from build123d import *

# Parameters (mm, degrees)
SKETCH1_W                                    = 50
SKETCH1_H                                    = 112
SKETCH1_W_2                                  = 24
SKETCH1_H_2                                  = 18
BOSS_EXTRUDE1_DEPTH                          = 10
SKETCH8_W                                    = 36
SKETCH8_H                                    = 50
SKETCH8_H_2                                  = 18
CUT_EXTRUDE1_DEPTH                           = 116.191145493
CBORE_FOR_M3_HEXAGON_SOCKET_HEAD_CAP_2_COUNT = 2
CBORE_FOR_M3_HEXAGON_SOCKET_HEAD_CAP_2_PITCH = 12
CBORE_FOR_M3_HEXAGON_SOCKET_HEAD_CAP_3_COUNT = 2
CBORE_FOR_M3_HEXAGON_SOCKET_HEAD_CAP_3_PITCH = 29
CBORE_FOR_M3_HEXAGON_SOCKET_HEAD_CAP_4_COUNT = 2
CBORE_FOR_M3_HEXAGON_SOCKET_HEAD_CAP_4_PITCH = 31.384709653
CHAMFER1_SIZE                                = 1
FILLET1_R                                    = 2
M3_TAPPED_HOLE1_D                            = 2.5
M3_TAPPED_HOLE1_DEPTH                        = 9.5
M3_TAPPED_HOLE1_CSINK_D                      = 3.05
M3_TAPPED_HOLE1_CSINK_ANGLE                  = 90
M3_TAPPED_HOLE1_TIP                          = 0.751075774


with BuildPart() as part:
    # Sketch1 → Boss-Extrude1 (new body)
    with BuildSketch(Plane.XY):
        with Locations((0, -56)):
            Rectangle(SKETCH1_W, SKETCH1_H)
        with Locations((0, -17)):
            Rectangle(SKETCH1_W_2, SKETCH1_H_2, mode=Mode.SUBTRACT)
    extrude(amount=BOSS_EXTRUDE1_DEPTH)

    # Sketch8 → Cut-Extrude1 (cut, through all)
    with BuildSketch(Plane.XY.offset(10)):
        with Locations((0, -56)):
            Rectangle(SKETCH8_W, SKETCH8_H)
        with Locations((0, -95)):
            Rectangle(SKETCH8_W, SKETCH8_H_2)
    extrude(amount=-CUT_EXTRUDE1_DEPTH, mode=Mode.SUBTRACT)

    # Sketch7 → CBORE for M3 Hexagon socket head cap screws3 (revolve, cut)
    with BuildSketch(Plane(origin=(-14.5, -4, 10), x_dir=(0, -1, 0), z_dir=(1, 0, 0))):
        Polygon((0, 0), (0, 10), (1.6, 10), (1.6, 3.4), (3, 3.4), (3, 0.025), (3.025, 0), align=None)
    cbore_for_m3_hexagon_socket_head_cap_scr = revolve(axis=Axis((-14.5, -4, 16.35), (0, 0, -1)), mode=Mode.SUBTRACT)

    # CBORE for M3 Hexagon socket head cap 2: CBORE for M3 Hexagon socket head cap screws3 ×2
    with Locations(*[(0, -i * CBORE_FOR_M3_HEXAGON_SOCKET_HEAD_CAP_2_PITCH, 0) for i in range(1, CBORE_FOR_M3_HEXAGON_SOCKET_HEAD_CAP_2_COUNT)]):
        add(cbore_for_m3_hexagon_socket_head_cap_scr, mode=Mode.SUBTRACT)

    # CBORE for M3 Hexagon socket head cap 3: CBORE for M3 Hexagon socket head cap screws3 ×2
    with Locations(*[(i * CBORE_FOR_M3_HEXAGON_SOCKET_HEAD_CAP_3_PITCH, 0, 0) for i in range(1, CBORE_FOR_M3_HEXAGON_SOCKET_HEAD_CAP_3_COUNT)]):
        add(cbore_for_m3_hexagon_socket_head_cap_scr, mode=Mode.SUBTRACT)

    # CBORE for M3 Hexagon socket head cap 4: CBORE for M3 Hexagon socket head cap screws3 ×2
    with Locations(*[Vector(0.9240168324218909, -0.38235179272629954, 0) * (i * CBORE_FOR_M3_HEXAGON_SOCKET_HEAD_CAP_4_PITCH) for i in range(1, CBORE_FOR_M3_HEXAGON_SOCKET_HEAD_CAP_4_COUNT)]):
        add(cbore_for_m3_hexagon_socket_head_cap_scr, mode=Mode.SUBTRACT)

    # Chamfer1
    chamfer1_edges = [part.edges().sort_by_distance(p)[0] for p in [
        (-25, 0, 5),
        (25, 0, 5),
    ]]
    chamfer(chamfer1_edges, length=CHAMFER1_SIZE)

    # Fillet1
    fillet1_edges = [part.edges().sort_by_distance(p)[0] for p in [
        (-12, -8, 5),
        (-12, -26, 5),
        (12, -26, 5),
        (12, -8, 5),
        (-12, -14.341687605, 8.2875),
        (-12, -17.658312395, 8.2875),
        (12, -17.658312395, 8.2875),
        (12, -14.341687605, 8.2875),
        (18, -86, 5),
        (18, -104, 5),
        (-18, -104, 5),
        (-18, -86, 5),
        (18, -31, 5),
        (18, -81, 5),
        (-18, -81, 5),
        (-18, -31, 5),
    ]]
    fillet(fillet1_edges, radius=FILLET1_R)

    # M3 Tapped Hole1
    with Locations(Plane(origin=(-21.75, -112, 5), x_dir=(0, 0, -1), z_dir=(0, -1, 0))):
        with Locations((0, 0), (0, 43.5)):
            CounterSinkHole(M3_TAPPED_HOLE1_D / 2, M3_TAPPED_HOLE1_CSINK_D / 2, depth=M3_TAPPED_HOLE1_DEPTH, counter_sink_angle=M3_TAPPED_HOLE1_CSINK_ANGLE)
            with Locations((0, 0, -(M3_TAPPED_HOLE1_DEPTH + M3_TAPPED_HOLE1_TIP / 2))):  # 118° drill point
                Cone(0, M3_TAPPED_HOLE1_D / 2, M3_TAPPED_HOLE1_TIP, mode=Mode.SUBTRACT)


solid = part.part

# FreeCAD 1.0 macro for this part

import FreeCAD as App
import Part
import Sketcher
Q = App.Units.Quantity


def edges_at(feature, points):
    """Names of the edges that pass closest to the given points."""
    edges = feature.Shape.Edges
    near = lambda p: min(range(len(edges)), key=lambda i: edges[i].distToShape(Part.Vertex(*p))[0])
    return sorted({f"Edge{near(p) + 1}" for p in points})


def add_polygon(sketch, points):
    """Adds a closed chain of lines whose ends are joined by coincident constraints."""
    first, n = sketch.GeometryCount, len(points)
    for a, b in zip(points, points[1:] + points[:1]):
        sketch.addGeometry(Part.LineSegment(App.Vector(*a, 0), App.Vector(*b, 0)), False)
    for i in range(n):
        sketch.addConstraint(Sketcher.Constraint("Coincident", first + i, 2, first + (i + 1) % n, 1))

doc = App.newDocument("Part")
body = doc.addObject("PartDesign::Body", "Body")

sketch1 = body.newObject("Sketcher::SketchObject", "Sketch")
sketch1.AttachmentSupport = (doc.getObject("XY_Plane"), [""])
sketch1.MapMode = "FlatFace"
add_polygon(sketch1, [(-25, 0), (-25, -112), (25, -112), (25, 0)])
add_polygon(sketch1, [(12, -26), (-12, -26), (-12, -8), (12, -8)])
sketch1.addConstraint([
    Sketcher.Constraint("Vertical", 0),
    Sketcher.Constraint("Horizontal", 1),
    Sketcher.Constraint("Vertical", 2),
    Sketcher.Constraint("Horizontal", 3),
    Sketcher.Constraint("Horizontal", 4),
    Sketcher.Constraint("Vertical", 5),
    Sketcher.Constraint("Horizontal", 6),
    Sketcher.Constraint("Vertical", 7),
    Sketcher.Constraint("Symmetric", 2, 2, 3, 2, -1, 1),
    Sketcher.Constraint("DistanceX", 1, 1, 1, 2, 50.0),
    Sketcher.Constraint("DistanceX", 4, 2, 4, 1, 24.0),
    Sketcher.Constraint("DistanceY", 0, 2, 0, 1, 112.0),
    Sketcher.Constraint("DistanceY", 5, 1, 5, 2, 18.0),
    Sketcher.Constraint("DistanceX", 4, 2, -1, 1, 12.0),
    Sketcher.Constraint("DistanceY", 4, 2, -1, 1, 26.0),
])
pad1 = body.newObject("PartDesign::Pad", "Pad")
pad1.Profile = sketch1
pad1.Length = 10

sketch2 = body.newObject("Sketcher::SketchObject", "Sketch001")
sketch2.AttachmentSupport = (doc.getObject("XY_Plane"), [""])
sketch2.MapMode = "FlatFace"
sketch2.AttachmentOffset = App.Placement(App.Vector(0, 0, 10), App.Rotation())
add_polygon(sketch2, [(-18, -31), (-18, -81), (18, -81), (18, -31)])
add_polygon(sketch2, [(-18, -86), (-18, -104), (18, -104), (18, -86)])
sketch2.addConstraint([
    Sketcher.Constraint("Vertical", 0),
    Sketcher.Constraint("Horizontal", 1),
    Sketcher.Constraint("Vertical", 2),
    Sketcher.Constraint("Horizontal", 3),
    Sketcher.Constraint("Vertical", 4),
    Sketcher.Constraint("Horizontal", 5),
    Sketcher.Constraint("Vertical", 6),
    Sketcher.Constraint("Horizontal", 7),
    Sketcher.Constraint("Vertical", 3, 2, 4, 2),
    Sketcher.Constraint("Vertical", 2, 2, 5, 2),
    Sketcher.Constraint("DistanceX", 1, 1, 1, 2, 36.0),
    Sketcher.Constraint("DistanceY", 0, 2, 0, 1, 50.0),
    Sketcher.Constraint("DistanceY", 4, 2, 4, 1, 18.0),
    Sketcher.Constraint("DistanceX", 0, 2, -1, 1, 18.0),
    Sketcher.Constraint("DistanceY", 0, 2, -1, 1, 81.0),
    Sketcher.Constraint("DistanceY", 4, 2, -1, 1, 104.0),
])
pocket1 = body.newObject("PartDesign::Pocket", "Pocket")
pocket1.Profile = sketch2
pocket1.Type = "ThroughAll"

sketch3 = body.newObject("Sketcher::SketchObject", "Sketch002")
sketch3.AttachmentSupport = (doc.getObject("YZ_Plane"), [""])
sketch3.MapMode = "FlatFace"
sketch3.AttachmentOffset = App.Placement(App.Vector(0, 0, -14.5), App.Rotation())
add_polygon(sketch3, [(-4, 0), (-4, 10), (-7.025, 10), (-7, 9.975), (-7, 6.6), (-5.6, 6.6), (-5.6, 0)])
sketch3.addGeometry(Part.LineSegment(App.Vector(-4, 10, 0), App.Vector(-4, 0, 0)), True)
sketch3.addConstraint([
    Sketcher.Constraint("Vertical", 0),
    Sketcher.Constraint("Horizontal", 1),
    Sketcher.Constraint("Vertical", 3),
    Sketcher.Constraint("Horizontal", 4),
    Sketcher.Constraint("Vertical", 5),
    Sketcher.Constraint("Horizontal", 6),
    Sketcher.Constraint("Vertical", 7),
    Sketcher.Constraint("Coincident", 7, 1, 0, 2),
    Sketcher.Constraint("PointOnObject", 5, 2, -1),
    Sketcher.Constraint("PointOnObject", 7, 2, -1),
    Sketcher.Constraint("DistanceY", 0, 1, 0, 2, 10.0),
    Sketcher.Constraint("Angle", 2, Q("-45 deg")),
    Sketcher.Constraint("DistanceX", 4, 1, 4, 2, 1.4),
    Sketcher.Constraint("DistanceX", 6, 1, 6, 2, 1.6),
    Sketcher.Constraint("DistanceY", 5, 2, 5, 1, 6.6),
    Sketcher.Constraint("DistanceX", 0, 2, -1, 1, 4.0),
    Sketcher.Constraint("DistanceX", 1, 2, 1, 1, 3.025),
])
groove = body.newObject("PartDesign::Groove", "Groove")
groove.Profile = sketch3
groove.ReferenceAxis = (sketch3, ["Axis0"])
groove.Angle = 360
doc.recompute()

linearpattern = body.newObject("PartDesign::LinearPattern", "LinearPattern")
linearpattern.Originals = [groove]
linearpattern.Direction = (doc.getObject("Y_Axis"), [""])
linearpattern.Mode = "offset"
linearpattern.Offset = 12
linearpattern.Occurrences = 2
linearpattern.Reversed = True
body.Tip = linearpattern
doc.recompute()

linearpattern2 = body.newObject("PartDesign::LinearPattern", "LinearPattern001")
linearpattern2.Originals = [groove]
linearpattern2.Direction = (doc.getObject("X_Axis"), [""])
linearpattern2.Mode = "offset"
linearpattern2.Offset = 29
linearpattern2.Occurrences = 2
body.Tip = linearpattern2
doc.recompute()

datumline = body.newObject("PartDesign::Line", "DatumLine")
datumline.Placement = App.Placement(App.Vector(0, 0, 0), App.Rotation(App.Vector(0, 0, 1), App.Vector(0.924016832, -0.382351793, 0)))
linearpattern3 = body.newObject("PartDesign::LinearPattern", "LinearPattern002")
linearpattern3.Originals = [groove]
linearpattern3.Direction = (datumline, [""])
linearpattern3.Mode = "offset"
linearpattern3.Offset = 31.38471
linearpattern3.Occurrences = 2
body.Tip = linearpattern3
doc.recompute()

chamfer = body.newObject("PartDesign::Chamfer", "Chamfer")
chamfer.Base = (linearpattern3, edges_at(linearpattern3, [(-25, 0, 5), (25, 0, 5)]))
chamfer.Size = 1
doc.recompute()

fillet = body.newObject("PartDesign::Fillet", "Fillet")
fillet.Base = (chamfer, edges_at(chamfer, [
    (-12, -8, 5),
    (-12, -26, 5),
    (12, -26, 5),
    (12, -8, 5),
    (-12, -14.342, 8.287),
    (-12, -17.658, 8.287),
    (12, -17.658, 8.287),
    (12, -14.342, 8.287),
    (18, -86, 5),
    (18, -104, 5),
    (-18, -104, 5),
    (-18, -86, 5),
    (18, -31, 5),
    (18, -81, 5),
    (-18, -81, 5),
    (-18, -31, 5),
]))
fillet.Radius = 2

sketch4 = body.newObject("Sketcher::SketchObject", "Sketch003")
sketch4.AttachmentSupport = (doc.getObject("XZ_Plane"), [""])
sketch4.MapMode = "FlatFace"
sketch4.AttachmentOffset = App.Placement(App.Vector(0, 0, 112), App.Rotation())
sketch4.addGeometry([
    Part.Circle(App.Vector(-21.75, 5, 0), App.Vector(0, 0, 1), 1.25),
    Part.Circle(App.Vector(21.75, 5, 0), App.Vector(0, 0, 1), 1.25),
], False)
sketch4.addConstraint([
    Sketcher.Constraint("Equal", 0, 1),
    Sketcher.Constraint("Symmetric", 0, 3, 1, 3, -2),
    Sketcher.Constraint("Diameter", 0, 2.5),
    Sketcher.Constraint("DistanceY", -1, 1, 0, 3, 5.0),
    Sketcher.Constraint("DistanceX", 0, 3, 1, 3, 43.5),
])
doc.recompute()
hole = body.newObject("PartDesign::Hole", "Hole")
hole.Profile = sketch4
hole.ThreadType = "None"
hole.Diameter = 2.5
hole.DepthType = "Dimension"
hole.Depth = 9.5
hole.DrillPoint = "Angled"
hole.DrillPointAngle = 118
hole.HoleCutType = "Countersink"
hole.HoleCutDiameter = 3.05
hole.HoleCutCountersinkAngle = 90

doc.recompute()
